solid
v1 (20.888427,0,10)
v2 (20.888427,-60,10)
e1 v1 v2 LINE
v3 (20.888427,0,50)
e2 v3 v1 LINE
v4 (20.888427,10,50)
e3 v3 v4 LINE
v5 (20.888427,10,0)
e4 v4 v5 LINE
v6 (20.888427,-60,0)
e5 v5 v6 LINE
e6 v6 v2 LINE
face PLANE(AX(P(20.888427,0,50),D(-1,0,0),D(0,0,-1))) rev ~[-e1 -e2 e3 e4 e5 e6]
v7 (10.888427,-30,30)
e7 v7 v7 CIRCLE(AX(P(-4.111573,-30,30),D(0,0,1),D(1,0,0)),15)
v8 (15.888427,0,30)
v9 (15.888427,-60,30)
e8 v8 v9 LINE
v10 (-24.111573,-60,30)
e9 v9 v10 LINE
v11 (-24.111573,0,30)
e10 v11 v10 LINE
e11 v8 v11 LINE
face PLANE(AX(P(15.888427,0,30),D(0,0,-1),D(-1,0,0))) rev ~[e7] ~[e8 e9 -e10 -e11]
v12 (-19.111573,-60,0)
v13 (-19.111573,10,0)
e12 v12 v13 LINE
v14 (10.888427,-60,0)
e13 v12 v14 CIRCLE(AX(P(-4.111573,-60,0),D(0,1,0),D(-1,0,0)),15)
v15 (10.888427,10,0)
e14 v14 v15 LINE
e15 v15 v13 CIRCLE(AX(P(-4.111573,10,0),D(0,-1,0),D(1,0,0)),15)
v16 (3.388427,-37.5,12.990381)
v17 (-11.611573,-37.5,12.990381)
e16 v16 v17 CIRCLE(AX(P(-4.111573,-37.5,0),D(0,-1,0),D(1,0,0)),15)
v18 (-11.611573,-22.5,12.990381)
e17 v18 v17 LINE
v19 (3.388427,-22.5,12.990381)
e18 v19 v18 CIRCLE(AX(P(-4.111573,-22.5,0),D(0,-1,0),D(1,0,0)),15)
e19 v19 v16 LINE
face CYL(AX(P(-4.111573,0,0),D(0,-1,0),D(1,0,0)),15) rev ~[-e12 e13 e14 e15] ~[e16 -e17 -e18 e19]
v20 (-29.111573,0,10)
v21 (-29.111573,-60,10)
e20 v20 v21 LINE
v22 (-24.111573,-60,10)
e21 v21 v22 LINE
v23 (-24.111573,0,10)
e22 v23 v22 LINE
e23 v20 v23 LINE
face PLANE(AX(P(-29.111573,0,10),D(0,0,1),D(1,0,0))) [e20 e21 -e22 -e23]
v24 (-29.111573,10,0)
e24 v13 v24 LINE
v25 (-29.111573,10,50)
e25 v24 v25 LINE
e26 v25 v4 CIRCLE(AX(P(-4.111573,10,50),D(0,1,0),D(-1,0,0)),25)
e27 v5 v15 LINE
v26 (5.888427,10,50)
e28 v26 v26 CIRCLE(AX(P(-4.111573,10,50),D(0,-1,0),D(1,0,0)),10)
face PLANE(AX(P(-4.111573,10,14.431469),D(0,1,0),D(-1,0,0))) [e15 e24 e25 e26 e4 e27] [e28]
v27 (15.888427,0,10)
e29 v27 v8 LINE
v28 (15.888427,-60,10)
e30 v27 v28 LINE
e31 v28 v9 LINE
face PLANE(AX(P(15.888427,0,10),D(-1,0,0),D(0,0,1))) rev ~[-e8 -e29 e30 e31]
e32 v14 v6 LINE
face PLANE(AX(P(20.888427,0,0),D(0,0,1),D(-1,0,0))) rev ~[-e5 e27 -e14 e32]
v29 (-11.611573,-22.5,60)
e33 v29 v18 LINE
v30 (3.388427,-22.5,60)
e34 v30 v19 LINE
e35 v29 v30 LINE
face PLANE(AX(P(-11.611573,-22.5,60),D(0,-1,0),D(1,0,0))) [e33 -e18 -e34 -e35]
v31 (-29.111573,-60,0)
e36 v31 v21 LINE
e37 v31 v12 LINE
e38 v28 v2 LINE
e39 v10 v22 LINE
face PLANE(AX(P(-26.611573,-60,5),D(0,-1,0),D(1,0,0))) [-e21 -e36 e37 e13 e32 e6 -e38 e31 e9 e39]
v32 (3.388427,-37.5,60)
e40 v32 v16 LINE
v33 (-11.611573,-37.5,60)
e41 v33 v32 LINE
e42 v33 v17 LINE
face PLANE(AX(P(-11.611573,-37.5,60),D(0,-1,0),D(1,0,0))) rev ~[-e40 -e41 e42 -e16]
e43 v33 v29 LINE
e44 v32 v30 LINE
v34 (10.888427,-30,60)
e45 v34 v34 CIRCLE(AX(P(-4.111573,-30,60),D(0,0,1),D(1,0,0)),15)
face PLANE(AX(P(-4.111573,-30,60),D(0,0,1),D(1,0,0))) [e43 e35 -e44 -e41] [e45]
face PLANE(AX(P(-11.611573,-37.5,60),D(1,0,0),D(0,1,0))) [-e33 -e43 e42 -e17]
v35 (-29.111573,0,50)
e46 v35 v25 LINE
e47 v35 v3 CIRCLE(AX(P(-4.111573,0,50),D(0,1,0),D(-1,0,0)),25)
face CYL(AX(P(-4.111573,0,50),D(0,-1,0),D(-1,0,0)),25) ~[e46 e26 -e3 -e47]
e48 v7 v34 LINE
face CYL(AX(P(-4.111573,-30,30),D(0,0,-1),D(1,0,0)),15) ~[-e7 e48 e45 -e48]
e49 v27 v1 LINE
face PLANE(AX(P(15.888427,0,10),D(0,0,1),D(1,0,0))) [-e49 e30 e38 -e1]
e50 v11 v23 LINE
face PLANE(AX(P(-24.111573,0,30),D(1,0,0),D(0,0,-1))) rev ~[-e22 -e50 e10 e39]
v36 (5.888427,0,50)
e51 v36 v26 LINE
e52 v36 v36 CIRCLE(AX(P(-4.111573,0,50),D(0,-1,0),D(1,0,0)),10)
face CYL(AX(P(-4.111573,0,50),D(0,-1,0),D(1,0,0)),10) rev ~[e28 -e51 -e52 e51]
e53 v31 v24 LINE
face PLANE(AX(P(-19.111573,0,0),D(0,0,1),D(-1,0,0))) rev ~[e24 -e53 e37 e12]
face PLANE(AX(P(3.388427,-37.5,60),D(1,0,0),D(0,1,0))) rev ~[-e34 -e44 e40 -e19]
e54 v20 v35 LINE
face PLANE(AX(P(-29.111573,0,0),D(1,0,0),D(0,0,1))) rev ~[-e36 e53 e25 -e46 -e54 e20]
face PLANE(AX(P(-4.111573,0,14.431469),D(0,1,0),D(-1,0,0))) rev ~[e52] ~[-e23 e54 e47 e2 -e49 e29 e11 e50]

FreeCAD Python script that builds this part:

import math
import FreeCAD as App
import Part
import Sketcher
from FreeCAD import Vector
Q = App.Units.Quantity


def add_polygon(sketch, points):
    """Adds a closed chain of lines whose ends are joined by coincident constraints."""
    first, n = sketch.GeometryCount, len(points)
    for a, b in zip(points, points[1:] + points[:1]):
        sketch.addGeometry(Part.LineSegment(App.Vector(*a, 0), App.Vector(*b, 0)), False)
    for i in range(n):
        sketch.addConstraint(Sketcher.Constraint("Coincident", first + i, 2, first + (i + 1) % n, 1))

doc = App.newDocument("Part")
params = doc.addObject("Spreadsheet::Sheet", "Params")
for row, (alias, value) in enumerate([
    ("sketch1_radius", "15 mm"),
    ("sketch1_width", "10 mm"),
    ("sketch1_width2", "5 mm"),
    ("sketch1_height", "20 mm"),
    ("pad1_length", "60 mm"),
    ("sketch2_diameter", "20 mm"),
    ("sketch2_radius", "15 mm"),
    ("sketch2_radius2", "25 mm"),
    ("sketch2_height", "50 mm"),
    ("pad2_length", "10 mm"),
    ("sketch3_diameter", "30 mm"),
    ("pad3_length", "30 mm"),
    ("sketch4_width", "15 mm"),
    ("pocket1_length", "70 mm"),
], start=1):
    params.set(f"A{row}", alias)
    params.set(f"B{row}", "=" + value)
    params.setAlias(f"B{row}", alias)

body = doc.addObject("PartDesign::Body", "Body")

# Sketch on XZ plane
sketch1 = body.newObject("Sketcher::SketchObject", "Sketch")
sketch1.AttachmentSupport = (doc.getObject("XZ_Plane"), [""])
sketch1.MapMode = "FlatFace"
sketch1.addGeometry([
    Part.LineSegment(Vector(-29, 10, 0), Vector(-29, 0, 0)),  # 0
    Part.LineSegment(Vector(-29, 0, 0), Vector(-19, 0, 0)),  # 1
    Part.ArcOfCircle(Part.Circle(Vector(-4, 0, 0), Vector(0, 0, 1), 15), math.radians(0), math.radians(180)),  # 2
    Part.LineSegment(Vector(11, 0, 0), Vector(21, 0, 0)),  # 3
    Part.LineSegment(Vector(21, 0, 0), Vector(21, 10, 0)),  # 4
    Part.LineSegment(Vector(21, 10, 0), Vector(16, 10, 0)),  # 5
    Part.LineSegment(Vector(16, 10, 0), Vector(16, 30, 0)),  # 6
    Part.LineSegment(Vector(16, 30, 0), Vector(-24, 30, 0)),  # 7
    Part.LineSegment(Vector(-24, 30, 0), Vector(-24, 10, 0)),  # 8
    Part.LineSegment(Vector(-24, 10, 0), Vector(-29, 10, 0)),  # 9
], False)
sketch1.addConstraint([
    Sketcher.Constraint("Coincident", 0, 2, 1, 1),
    Sketcher.Constraint("Coincident", 1, 2, 2, 2),
    Sketcher.Constraint("Coincident", 2, 1, 3, 1),
    Sketcher.Constraint("Coincident", 3, 2, 4, 1),
    Sketcher.Constraint("Coincident", 4, 2, 5, 1),
    Sketcher.Constraint("Coincident", 5, 2, 6, 1),
    Sketcher.Constraint("Coincident", 6, 2, 7, 1),
    Sketcher.Constraint("Coincident", 7, 2, 8, 1),
    Sketcher.Constraint("Coincident", 8, 2, 9, 1),
    Sketcher.Constraint("Coincident", 9, 2, 0, 1),
    Sketcher.Constraint("Vertical", 0),
    Sketcher.Constraint("Horizontal", 1),
    Sketcher.Constraint("Horizontal", 3),
    Sketcher.Constraint("Vertical", 4),
    Sketcher.Constraint("Horizontal", 5),
    Sketcher.Constraint("Vertical", 6),
    Sketcher.Constraint("Horizontal", 7),
    Sketcher.Constraint("Vertical", 8),
    Sketcher.Constraint("Horizontal", 9),
    Sketcher.Constraint("PointOnObject", 2, 3, -1),
    Sketcher.Constraint("PointOnObject", 0, 2, -1),
    Sketcher.Constraint("PointOnObject", 2, 1, -1),
    Sketcher.Constraint("Horizontal", 5, 2, 8, 2),
    Sketcher.Constraint("Equal", 1, 3),
    Sketcher.Constraint("Equal", 5, 9),
    Sketcher.Constraint("Equal", 3, 0),
    Sketcher.Constraint("Radius", 2, Q("15 mm")),
    Sketcher.Constraint("DistanceX", 1, 1, 1, 2, Q("10 mm")),
    Sketcher.Constraint("DistanceX", 5, 2, 5, 1, Q("5 mm")),
    Sketcher.Constraint("DistanceY", 6, 1, 6, 2, Q("20 mm")),
    Sketcher.Constraint("DistanceX", 2, 3, -1, 1, Q("4.111573 mm")),
])
sketch1.setExpression("Constraints[26]", "Params.sketch1_radius")
sketch1.setExpression("Constraints[27]", "Params.sketch1_width")
sketch1.setExpression("Constraints[28]", "Params.sketch1_width2")
sketch1.setExpression("Constraints[29]", "Params.sketch1_height")
pad1 = body.newObject("PartDesign::Pad", "Pad")
pad1.Profile = sketch1
pad1.setExpression("Length", "Params.pad1_length")

# Sketch on XZ plane
sketch2 = body.newObject("Sketcher::SketchObject", "Sketch001")
sketch2.AttachmentSupport = (doc.getObject("XZ_Plane"), [""])
sketch2.MapMode = "FlatFace"
sketch2.addGeometry([
    Part.LineSegment(Vector(21, 0, 0), Vector(11, 0, 0)),  # 0
    Part.ArcOfCircle(Part.Circle(Vector(-4, 0, 0), Vector(0, 0, 1), 15), math.radians(0), math.radians(180)),  # 1
    Part.LineSegment(Vector(-19, 0, 0), Vector(-29, 0, 0)),  # 2
    Part.LineSegment(Vector(-29, 0, 0), Vector(-29, 50, 0)),  # 3
    Part.ArcOfCircle(Part.Circle(Vector(-4, 50, 0), Vector(0, 0, 1), 25), math.radians(0), math.radians(180)),  # 4
    Part.LineSegment(Vector(21, 50, 0), Vector(21, 0, 0)),  # 5
    Part.Circle(Vector(-4, 50, 0), Vector(0, 0, 1), 10),  # 6
], False)
sketch2.addConstraint([
    Sketcher.Constraint("Coincident", 0, 2, 1, 1),
    Sketcher.Constraint("Coincident", 1, 2, 2, 1),
    Sketcher.Constraint("Coincident", 2, 2, 3, 1),
    Sketcher.Constraint("Tangent", 3, 2, 4, 2),
    Sketcher.Constraint("Tangent", 4, 1, 5, 1),
    Sketcher.Constraint("Coincident", 5, 2, 0, 1),
    Sketcher.Constraint("Horizontal", 0),
    Sketcher.Constraint("Horizontal", 2),
    Sketcher.Constraint("Vertical", 3),
    Sketcher.Constraint("Vertical", 5),
    Sketcher.Constraint("Coincident", 6, 3, 4, 3),
    Sketcher.Constraint("PointOnObject", 1, 3, -1),
    Sketcher.Constraint("PointOnObject", 0, 2, -1),
    Sketcher.Constraint("PointOnObject", 1, 2, -1),
    Sketcher.Constraint("Vertical", 1, 3, 4, 3),
    Sketcher.Constraint("Diameter", 6, Q("20 mm")),
    Sketcher.Constraint("Radius", 1, Q("15 mm")),
    Sketcher.Constraint("Radius", 4, Q("25 mm")),
    Sketcher.Constraint("DistanceY", 3, 1, 3, 2, Q("50 mm")),
    Sketcher.Constraint("DistanceX", 1, 3, -1, 1, Q("4.111573 mm")),
])
sketch2.setExpression("Constraints[15]", "Params.sketch2_diameter")
sketch2.setExpression("Constraints[16]", "Params.sketch2_radius")
sketch2.setExpression("Constraints[17]", "Params.sketch2_radius2")
sketch2.setExpression("Constraints[18]", "Params.sketch2_height")
pad2 = body.newObject("PartDesign::Pad", "Pad001")
pad2.Profile = sketch2
pad2.setExpression("Length", "Params.pad2_length")
pad2.Reversed = True

# Sketch on XY plane
sketch3 = body.newObject("Sketcher::SketchObject", "Sketch002")
sketch3.AttachmentSupport = (doc.getObject("XY_Plane"), [""])
sketch3.MapMode = "FlatFace"
sketch3.AttachmentOffset = App.Placement(Vector(0, 0, 30), App.Rotation())
sketch3.addGeometry(Part.Circle(Vector(-4, -30, 0), Vector(0, 0, 1), 15), False)
sketch3.addConstraint([
    Sketcher.Constraint("Diameter", 0, Q("30 mm")),
    Sketcher.Constraint("DistanceY", 0, 3, -1, 1, Q("30 mm")),
    Sketcher.Constraint("DistanceX", 0, 3, -1, 1, Q("4.111573 mm")),
])
sketch3.setExpression("Constraints[0]", "Params.sketch3_diameter")
pad3 = body.newObject("PartDesign::Pad", "Pad002")
pad3.Profile = sketch3
pad3.setExpression("Length", "Params.pad3_length")

# Sketch on XY plane
sketch4 = body.newObject("Sketcher::SketchObject", "Sketch003")
sketch4.AttachmentSupport = (doc.getObject("XY_Plane"), [""])
sketch4.MapMode = "FlatFace"
sketch4.AttachmentOffset = App.Placement(Vector(0, 0, 60), App.Rotation())
add_polygon(sketch4, [(-12, -22), (-12, -38), (3, -38), (3, -22)])  # lines 0-3
sketch4.addConstraint([
    Sketcher.Constraint("Vertical", 0),
    Sketcher.Constraint("Horizontal", 1),
    Sketcher.Constraint("Vertical", 2),
    Sketcher.Constraint("Horizontal", 3),
    Sketcher.Constraint("Equal", 3, 0),
    Sketcher.Constraint("DistanceX", 1, 1, 1, 2, Q("15 mm")),
    Sketcher.Constraint("DistanceY", 0, 2, -1, 1, Q("37.5 mm")),
    Sketcher.Constraint("DistanceX", 0, 2, -1, 1, Q("11.611573 mm")),
])
sketch4.setExpression("Constraints[9]", "Params.sketch4_width")
pocket1 = body.newObject("PartDesign::Pocket", "Pocket")
pocket1.Profile = sketch4
pocket1.setExpression("Length", "Params.pocket1_length")

doc.recompute()
